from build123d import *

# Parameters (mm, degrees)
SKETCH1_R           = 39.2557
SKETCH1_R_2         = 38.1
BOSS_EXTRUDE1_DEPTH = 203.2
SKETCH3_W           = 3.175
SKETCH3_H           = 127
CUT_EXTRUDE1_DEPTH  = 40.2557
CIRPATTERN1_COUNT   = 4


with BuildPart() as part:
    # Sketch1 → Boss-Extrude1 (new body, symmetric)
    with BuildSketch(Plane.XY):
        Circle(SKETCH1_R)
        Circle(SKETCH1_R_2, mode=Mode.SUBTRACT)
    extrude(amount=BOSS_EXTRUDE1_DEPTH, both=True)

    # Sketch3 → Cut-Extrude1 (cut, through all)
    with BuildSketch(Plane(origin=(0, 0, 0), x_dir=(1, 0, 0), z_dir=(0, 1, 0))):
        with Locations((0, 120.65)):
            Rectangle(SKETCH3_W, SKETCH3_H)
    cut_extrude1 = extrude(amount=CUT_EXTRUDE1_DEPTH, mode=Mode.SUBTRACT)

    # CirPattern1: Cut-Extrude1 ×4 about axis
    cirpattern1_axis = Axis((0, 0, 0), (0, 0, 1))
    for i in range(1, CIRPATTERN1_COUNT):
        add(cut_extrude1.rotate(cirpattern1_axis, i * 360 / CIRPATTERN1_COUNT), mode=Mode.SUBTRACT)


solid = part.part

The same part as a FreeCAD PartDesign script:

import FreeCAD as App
import Part
import Sketcher
from FreeCAD import Vector
Q = App.Units.Quantity


def add_polygon(sketch, points):
    """Adds a closed chain of lines whose ends are joined by coincident constraints."""
    first, n = sketch.GeometryCount, len(points)
    for a, b in zip(points, points[1:] + points[:1]):
        sketch.addGeometry(Part.LineSegment(App.Vector(*a, 0), App.Vector(*b, 0)), False)
    for i in range(n):
        sketch.addConstraint(Sketcher.Constraint("Coincident", first + i, 2, first + (i + 1) % n, 1))

doc = App.newDocument("Part")
params = doc.addObject("Spreadsheet::Sheet", "Params")
for row, (alias, value) in enumerate([
    ("sketch1_diameter", "3 in"),
    ("sketch1_diameter2", "3.091 in"),
    ("pad1_length", "16 in"),
    ("sketch2_height", "5 in"),
    ("sketch2_width", "0.125 in"),
], start=1):
    params.set(f"A{row}", alias)
    params.set(f"B{row}", "=" + value)
    params.setAlias(f"B{row}", alias)

body = doc.addObject("PartDesign::Body", "Body")

# Sketch on XY plane
sketch1 = doc.addObject("Sketcher::SketchObject", "Sketch")
body.addObject(sketch1)
sketch1.AttachmentSupport = (doc.XY_Plane, [""])
sketch1.MapMode = "FlatFace"
sketch1.addGeometry([
    Part.Circle(Vector(0, 0, 0), Vector(0, 0, 1), 39),
    Part.Circle(Vector(0, 0, 0), Vector(0, 0, 1), 38),
], False)
sketch1.addConstraint([
    Sketcher.Constraint("Coincident", 0, 3, -1, 1),
    Sketcher.Constraint("Coincident", 1, 3, -1, 1),
    Sketcher.Constraint("Diameter", 1, Q("3 in")),
    Sketcher.Constraint("Diameter", 0, Q("3.091 in")),
])
sketch1.setExpression("Constraints[2]", "Params.sketch1_diameter")
sketch1.setExpression("Constraints[3]", "Params.sketch1_diameter2")
pad1 = doc.addObject("PartDesign::Pad", "Pad")
body.addObject(pad1)
pad1.Profile = sketch1
pad1.setExpression("Length", "Params.pad1_length")
pad1.Midplane = True

# Sketch on XZ plane
sketch2 = doc.addObject("Sketcher::SketchObject", "Sketch001")
body.addObject(sketch2)
sketch2.AttachmentSupport = (doc.XZ_Plane, [""])
sketch2.MapMode = "FlatFace"
add_polygon(sketch2, [(-1.6, -184.2), (-1.6, -57.1), (1.6, -57.1), (1.6, -184.2)])  # lines 0-3
sketch2.addConstraint([
    Sketcher.Constraint("Vertical", 0),
    Sketcher.Constraint("Horizontal", 1),
    Sketcher.Constraint("Vertical", 2),
    Sketcher.Constraint("Horizontal", 3),
    Sketcher.Constraint("DistanceY", 0, 1, 0, 2, Q("5 in")),
    Sketcher.Constraint("DistanceX", 1, 1, 1, 2, Q("0.125 in")),
    Sketcher.Constraint("DistanceY", 0, 2, -1, 1, Q("2.25 in")),
    Sketcher.Constraint("DistanceX", 0, 2, -1, 1, Q("0.0625 in")),
])
sketch2.setExpression("Constraints[8]", "Params.sketch2_height")
sketch2.setExpression("Constraints[9]", "Params.sketch2_width")
pocket1 = doc.addObject("PartDesign::Pocket", "Pocket")
body.addObject(pocket1)
pocket1.Profile = sketch2
pocket1.Type = "ThroughAll"
doc.recompute()

polarpattern = doc.addObject("PartDesign::PolarPattern", "PolarPattern")
body.addObject(polarpattern)
polarpattern.Originals = [pocket1]
polarpattern.Axis = (doc.Z_Axis, [""])
polarpattern.Angle = 360
polarpattern.Occurrences = 4
body.Tip = polarpattern

doc.recompute()
